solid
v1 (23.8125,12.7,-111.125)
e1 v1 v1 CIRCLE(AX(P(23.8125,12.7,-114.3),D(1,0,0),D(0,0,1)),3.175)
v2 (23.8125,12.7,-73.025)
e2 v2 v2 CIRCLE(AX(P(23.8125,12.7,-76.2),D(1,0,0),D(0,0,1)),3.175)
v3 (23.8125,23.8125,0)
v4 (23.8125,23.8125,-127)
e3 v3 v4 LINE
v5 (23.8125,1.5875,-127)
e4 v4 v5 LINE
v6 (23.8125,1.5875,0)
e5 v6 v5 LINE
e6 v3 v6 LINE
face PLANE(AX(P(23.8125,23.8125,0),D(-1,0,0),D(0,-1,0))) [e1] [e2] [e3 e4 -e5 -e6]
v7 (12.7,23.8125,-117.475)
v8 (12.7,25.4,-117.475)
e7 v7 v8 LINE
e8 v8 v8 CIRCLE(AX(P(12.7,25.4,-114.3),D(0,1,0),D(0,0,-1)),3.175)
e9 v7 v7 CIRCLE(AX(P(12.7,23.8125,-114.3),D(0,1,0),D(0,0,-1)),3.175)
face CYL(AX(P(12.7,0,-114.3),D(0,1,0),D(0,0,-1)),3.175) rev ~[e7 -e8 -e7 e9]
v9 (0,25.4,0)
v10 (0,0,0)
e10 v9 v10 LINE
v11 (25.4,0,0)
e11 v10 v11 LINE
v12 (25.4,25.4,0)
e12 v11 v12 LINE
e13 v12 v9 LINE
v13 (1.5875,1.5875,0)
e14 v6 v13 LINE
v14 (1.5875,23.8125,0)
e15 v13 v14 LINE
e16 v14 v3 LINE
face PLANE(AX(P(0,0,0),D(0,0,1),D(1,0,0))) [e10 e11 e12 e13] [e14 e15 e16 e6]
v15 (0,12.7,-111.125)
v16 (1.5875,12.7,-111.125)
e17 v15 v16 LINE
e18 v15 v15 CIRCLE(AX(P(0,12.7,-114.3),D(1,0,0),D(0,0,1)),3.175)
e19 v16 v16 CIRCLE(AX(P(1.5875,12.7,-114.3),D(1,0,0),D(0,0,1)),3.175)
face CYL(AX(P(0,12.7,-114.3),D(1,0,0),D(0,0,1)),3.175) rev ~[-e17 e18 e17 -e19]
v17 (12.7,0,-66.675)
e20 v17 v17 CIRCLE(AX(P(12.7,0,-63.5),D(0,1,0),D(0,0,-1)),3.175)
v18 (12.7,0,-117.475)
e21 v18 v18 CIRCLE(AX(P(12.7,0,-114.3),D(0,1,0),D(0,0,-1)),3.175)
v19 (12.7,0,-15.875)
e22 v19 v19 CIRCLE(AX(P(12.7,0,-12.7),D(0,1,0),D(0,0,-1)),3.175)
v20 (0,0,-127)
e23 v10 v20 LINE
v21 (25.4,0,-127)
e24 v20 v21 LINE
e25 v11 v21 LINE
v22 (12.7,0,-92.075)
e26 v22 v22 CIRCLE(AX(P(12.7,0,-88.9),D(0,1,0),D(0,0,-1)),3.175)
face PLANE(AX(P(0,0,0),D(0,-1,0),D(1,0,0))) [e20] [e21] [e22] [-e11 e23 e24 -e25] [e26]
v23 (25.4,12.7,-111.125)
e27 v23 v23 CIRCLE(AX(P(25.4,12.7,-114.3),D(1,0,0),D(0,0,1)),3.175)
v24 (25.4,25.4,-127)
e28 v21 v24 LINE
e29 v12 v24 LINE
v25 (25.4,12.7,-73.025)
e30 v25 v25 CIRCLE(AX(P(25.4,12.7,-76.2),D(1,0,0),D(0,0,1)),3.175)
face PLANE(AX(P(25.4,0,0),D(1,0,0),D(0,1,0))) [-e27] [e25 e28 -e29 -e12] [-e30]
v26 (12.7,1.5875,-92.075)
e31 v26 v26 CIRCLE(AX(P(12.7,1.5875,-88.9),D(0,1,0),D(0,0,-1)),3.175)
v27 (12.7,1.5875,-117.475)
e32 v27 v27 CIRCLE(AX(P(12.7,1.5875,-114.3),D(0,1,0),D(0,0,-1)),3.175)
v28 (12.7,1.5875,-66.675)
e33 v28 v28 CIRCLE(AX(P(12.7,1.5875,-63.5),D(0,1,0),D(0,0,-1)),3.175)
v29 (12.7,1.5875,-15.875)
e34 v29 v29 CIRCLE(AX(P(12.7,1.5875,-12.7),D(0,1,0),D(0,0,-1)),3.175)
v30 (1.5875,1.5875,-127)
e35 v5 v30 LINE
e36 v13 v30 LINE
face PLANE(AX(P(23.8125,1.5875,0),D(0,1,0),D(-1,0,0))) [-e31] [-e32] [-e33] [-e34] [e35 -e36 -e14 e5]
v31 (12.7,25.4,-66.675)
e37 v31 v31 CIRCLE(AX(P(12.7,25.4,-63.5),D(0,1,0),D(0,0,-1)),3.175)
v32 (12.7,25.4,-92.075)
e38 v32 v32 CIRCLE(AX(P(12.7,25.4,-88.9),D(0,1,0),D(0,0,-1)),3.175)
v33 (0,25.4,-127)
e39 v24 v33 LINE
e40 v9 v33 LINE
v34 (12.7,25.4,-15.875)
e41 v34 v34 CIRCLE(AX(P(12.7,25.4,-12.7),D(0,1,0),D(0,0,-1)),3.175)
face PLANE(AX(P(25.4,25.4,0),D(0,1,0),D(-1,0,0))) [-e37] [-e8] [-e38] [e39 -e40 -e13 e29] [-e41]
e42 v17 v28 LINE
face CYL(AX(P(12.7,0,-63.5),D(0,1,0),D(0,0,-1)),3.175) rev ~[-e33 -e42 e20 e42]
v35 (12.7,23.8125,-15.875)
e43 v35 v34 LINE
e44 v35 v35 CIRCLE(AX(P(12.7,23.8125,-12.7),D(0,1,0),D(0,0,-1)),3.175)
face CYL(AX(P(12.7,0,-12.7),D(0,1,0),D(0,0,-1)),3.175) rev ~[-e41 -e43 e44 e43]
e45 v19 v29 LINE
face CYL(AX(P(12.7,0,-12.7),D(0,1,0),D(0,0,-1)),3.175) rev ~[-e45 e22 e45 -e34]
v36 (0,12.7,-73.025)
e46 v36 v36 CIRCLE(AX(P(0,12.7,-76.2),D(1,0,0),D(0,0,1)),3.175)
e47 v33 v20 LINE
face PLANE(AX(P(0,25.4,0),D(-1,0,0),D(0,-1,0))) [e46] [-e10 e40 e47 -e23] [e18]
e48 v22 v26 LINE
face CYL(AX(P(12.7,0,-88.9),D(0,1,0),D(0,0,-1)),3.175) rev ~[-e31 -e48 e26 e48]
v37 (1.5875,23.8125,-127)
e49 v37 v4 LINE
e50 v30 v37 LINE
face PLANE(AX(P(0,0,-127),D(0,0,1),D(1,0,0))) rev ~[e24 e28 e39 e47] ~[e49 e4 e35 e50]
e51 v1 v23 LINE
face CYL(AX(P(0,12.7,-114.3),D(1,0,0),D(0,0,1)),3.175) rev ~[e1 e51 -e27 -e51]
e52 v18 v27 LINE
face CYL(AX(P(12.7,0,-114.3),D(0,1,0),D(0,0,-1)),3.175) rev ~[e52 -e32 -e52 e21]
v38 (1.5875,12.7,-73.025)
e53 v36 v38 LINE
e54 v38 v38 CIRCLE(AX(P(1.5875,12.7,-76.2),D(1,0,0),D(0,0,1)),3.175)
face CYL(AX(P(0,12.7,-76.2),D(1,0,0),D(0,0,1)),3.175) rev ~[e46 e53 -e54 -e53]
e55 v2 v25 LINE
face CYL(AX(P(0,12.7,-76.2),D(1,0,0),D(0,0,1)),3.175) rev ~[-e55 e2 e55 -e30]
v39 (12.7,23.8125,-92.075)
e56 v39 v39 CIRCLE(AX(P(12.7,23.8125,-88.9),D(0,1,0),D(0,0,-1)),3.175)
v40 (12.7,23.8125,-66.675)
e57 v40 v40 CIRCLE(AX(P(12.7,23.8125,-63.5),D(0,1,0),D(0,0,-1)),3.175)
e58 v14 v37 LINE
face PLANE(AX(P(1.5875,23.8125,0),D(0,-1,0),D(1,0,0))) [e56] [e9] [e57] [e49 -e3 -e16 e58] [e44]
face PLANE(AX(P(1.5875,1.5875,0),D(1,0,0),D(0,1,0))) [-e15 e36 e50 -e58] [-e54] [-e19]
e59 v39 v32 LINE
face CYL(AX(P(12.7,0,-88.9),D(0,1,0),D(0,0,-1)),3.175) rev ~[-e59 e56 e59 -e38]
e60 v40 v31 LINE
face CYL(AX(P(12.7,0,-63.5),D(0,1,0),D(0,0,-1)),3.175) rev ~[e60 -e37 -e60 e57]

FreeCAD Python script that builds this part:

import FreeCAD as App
import Part
import Sketcher
Q = App.Units.Quantity


def add_polygon(sketch, points):
    """Adds a closed chain of lines whose ends are joined by coincident constraints."""
    first, n = sketch.GeometryCount, len(points)
    for a, b in zip(points, points[1:] + points[:1]):
        sketch.addGeometry(Part.LineSegment(App.Vector(*a, 0), App.Vector(*b, 0)), False)
    for i in range(n):
        sketch.addConstraint(Sketcher.Constraint("Coincident", first + i, 2, first + (i + 1) % n, 1))

doc = App.newDocument("Part")
params = doc.addObject("Spreadsheet::Sheet", "Params")
for row, (alias, value) in enumerate([
    ("sketch1_width", "1 in"),
    ("pad1_length", "5 in"),
    ("sketch2_diameter", "0.25 in"),
    ("hole_diameter", "0.25 in"),
    ("hole_depth", "1 in"),
    ("sketch3_diameter", "0.25 in"),
    ("hole2_diameter", "0.25 in"),
    ("hole2_depth", "1 in"),
], start=1):
    params.set(f"A{row}", alias)
    params.set(f"B{row}", "=" + value)
    params.setAlias(f"B{row}", alias)

body = doc.addObject("PartDesign::Body", "Body")

# Sketch on XY plane
sketch1 = body.newObject("Sketcher::SketchObject", "Sketch")
sketch1.AttachmentSupport = (doc.getObject("XY_Plane"), [""])
sketch1.MapMode = "FlatFace"
add_polygon(sketch1, [(0, 25.4), (0, 0), (25.4, 0), (25.4, 25.4)])  # lines 0-3
add_polygon(sketch1, [(1.5875, 1.5875), (1.5875, 23.8125), (23.8125, 23.8125), (23.8125, 1.5875)])  # lines 4-7
sketch1.addConstraint([
    Sketcher.Constraint("Vertical", 0),
    Sketcher.Constraint("Horizontal", 1),
    Sketcher.Constraint("Vertical", 2),
    Sketcher.Constraint("Horizontal", 3),
    Sketcher.Constraint("Vertical", 4),
    Sketcher.Constraint("Horizontal", 5),
    Sketcher.Constraint("Vertical", 6),
    Sketcher.Constraint("Horizontal", 7),
    Sketcher.Constraint("Coincident", 0, 2, -1, 1),
    Sketcher.Constraint("Equal", 3, 0),
    Sketcher.Constraint("Equal", 7, 4),
    Sketcher.Constraint("DistanceX", 1, 1, 1, 2, Q("1 in")),
    Sketcher.Constraint("DistanceX", -1, 1, 4, 2, Q("0.0625 in")),
    Sketcher.Constraint("DistanceY", -1, 1, 6, 2, Q("0.0625 in")),
    Sketcher.Constraint("DistanceY", 4, 2, 3, 2, Q("0.0625 in")),
])
sketch1.setExpression("Constraints[19]", "Params.sketch1_width")
pad1 = body.newObject("PartDesign::Pad", "Pad")
pad1.Profile = sketch1
pad1.setExpression("Length", "Params.pad1_length")
pad1.Reversed = True

# Sketch on XZ plane
sketch2 = body.newObject("Sketcher::SketchObject", "Sketch001")
sketch2.AttachmentSupport = (doc.getObject("XZ_Plane"), [""])
sketch2.MapMode = "FlatFace"
sketch2.addGeometry([
    Part.Circle(App.Vector(12.7, -12.7, 0), App.Vector(0, 0, 1), 3.175),
    Part.Circle(App.Vector(12.7, -114.3, 0), App.Vector(0, 0, 1), 3.175),
    Part.Circle(App.Vector(12.7, -88.9, 0), App.Vector(0, 0, 1), 3.175),
    Part.Circle(App.Vector(12.7, -63.5, 0), App.Vector(0, 0, 1), 3.175),
], False)
sketch2.addConstraint([
    Sketcher.Constraint("Equal", 0, 1),
    Sketcher.Constraint("Equal", 1, 2),
    Sketcher.Constraint("Equal", 2, 3),
    Sketcher.Constraint("Vertical", 0, 3, 1, 3),
    Sketcher.Constraint("Vertical", 1, 3, 2, 3),
    Sketcher.Constraint("Vertical", 2, 3, 3, 3),
    Sketcher.Constraint("Diameter", 0, Q("0.25 in")),
    Sketcher.Constraint("DistanceY", 1, 3, 0, 3, Q("4 in")),
    Sketcher.Constraint("DistanceY", 1, 3, 2, 3, Q("1 in")),
    Sketcher.Constraint("DistanceY", 2, 3, 3, 3, Q("1 in")),
    Sketcher.Constraint("DistanceX", -1, 1, 0, 3, Q("0.5 in")),
    Sketcher.Constraint("DistanceY", 0, 3, -1, 1, Q("0.5 in")),
])
sketch2.setExpression("Constraints[6]", "Params.sketch2_diameter")
doc.recompute()
hole = body.newObject("PartDesign::Hole", "Hole")
hole.Profile = sketch2
hole.ThreadType = "None"
hole.setExpression("Diameter", "Params.hole_diameter")
hole.DepthType = "Dimension"
hole.setExpression("Depth", "Params.hole_depth")
hole.DrillPoint = "Angled"
hole.DrillPointAngle = 118

# Sketch on YZ plane
sketch3 = body.newObject("Sketcher::SketchObject", "Sketch002")
sketch3.AttachmentSupport = (doc.getObject("YZ_Plane"), [""])
sketch3.MapMode = "FlatFace"
sketch3.addGeometry([
    Part.Circle(App.Vector(12.7, -114.3, 0), App.Vector(0, 0, 1), 3.175),
    Part.Circle(App.Vector(12.7, -76.2, 0), App.Vector(0, 0, 1), 3.175),
], False)
sketch3.addConstraint([
    Sketcher.Constraint("Equal", 0, 1),
    Sketcher.Constraint("Vertical", 0, 3, 1, 3),
    Sketcher.Constraint("Diameter", 0, Q("0.25 in")),
    Sketcher.Constraint("DistanceY", 1, 3, -1, 1, Q("3 in")),
    Sketcher.Constraint("DistanceX", -1, 1, 0, 3, Q("0.5 in")),
    Sketcher.Constraint("DistanceY", 0, 3, -1, 1, Q("4.5 in")),
])
sketch3.setExpression("Constraints[2]", "Params.sketch3_diameter")
doc.recompute()
hole2 = body.newObject("PartDesign::Hole", "Hole001")
hole2.Profile = sketch3
hole2.ThreadType = "None"
hole2.setExpression("Diameter", "Params.hole2_diameter")
hole2.DepthType = "Dimension"
hole2.setExpression("Depth", "Params.hole2_depth")
hole2.DrillPoint = "Angled"
hole2.DrillPointAngle = 118
hole2.Reversed = True

doc.recompute()
